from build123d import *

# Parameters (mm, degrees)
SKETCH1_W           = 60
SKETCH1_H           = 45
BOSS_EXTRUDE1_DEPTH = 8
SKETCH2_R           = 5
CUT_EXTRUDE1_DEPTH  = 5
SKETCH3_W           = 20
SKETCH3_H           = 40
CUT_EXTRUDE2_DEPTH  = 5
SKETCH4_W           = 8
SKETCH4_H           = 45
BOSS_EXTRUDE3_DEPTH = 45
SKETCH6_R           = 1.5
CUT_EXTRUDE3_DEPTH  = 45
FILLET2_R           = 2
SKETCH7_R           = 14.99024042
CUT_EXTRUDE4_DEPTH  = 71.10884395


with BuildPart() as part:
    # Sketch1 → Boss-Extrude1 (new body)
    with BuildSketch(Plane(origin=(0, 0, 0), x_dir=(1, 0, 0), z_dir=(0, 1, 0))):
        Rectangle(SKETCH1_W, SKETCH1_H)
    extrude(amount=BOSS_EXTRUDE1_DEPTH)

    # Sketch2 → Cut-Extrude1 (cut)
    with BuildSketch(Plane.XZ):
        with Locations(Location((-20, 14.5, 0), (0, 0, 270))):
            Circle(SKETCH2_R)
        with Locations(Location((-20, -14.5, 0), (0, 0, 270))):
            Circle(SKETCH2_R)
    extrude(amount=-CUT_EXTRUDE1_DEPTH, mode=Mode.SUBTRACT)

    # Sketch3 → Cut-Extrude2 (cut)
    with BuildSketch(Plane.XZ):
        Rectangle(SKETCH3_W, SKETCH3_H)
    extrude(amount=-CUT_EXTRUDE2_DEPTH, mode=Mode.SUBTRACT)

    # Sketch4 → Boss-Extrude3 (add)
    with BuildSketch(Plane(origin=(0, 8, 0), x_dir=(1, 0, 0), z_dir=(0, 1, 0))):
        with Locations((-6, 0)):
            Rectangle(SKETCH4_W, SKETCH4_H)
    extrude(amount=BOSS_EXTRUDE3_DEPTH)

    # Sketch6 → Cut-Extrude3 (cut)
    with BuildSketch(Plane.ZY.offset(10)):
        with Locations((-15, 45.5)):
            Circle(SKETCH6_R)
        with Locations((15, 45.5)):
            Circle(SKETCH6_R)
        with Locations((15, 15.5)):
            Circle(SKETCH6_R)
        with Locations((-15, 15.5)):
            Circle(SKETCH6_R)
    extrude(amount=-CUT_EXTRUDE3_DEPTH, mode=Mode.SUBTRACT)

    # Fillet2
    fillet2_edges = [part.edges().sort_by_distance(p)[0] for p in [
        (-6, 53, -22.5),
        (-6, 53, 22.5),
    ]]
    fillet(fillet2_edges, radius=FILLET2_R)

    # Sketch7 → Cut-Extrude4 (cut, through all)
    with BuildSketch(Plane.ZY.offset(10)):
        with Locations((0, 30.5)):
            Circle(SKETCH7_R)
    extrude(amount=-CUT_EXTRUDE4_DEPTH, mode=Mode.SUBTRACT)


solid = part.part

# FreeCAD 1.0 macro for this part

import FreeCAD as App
import Part
import Sketcher

V = App.Vector


def edges_at(feature, points):
    """Names of the edges that pass closest to the given points."""
    edges = feature.Shape.Edges
    near = lambda p: min(range(len(edges)), key=lambda i: edges[i].distToShape(Part.Vertex(*p))[0])
    return sorted({f"Edge{near(p) + 1}" for p in points})

doc = App.newDocument("Part")
body = doc.addObject("PartDesign::Body", "Body")

# Sketch on XZ plane
sketch1 = body.newObject("Sketcher::SketchObject", "Sketch")
sketch1.AttachmentSupport = (doc.getObject("XZ_Plane"), [""])
sketch1.MapMode = "FlatFace"
sketch1.addGeometry([
    Part.LineSegment(V(-30, -22.5, 0), V(-30, 22.5, 0)),
    Part.LineSegment(V(-30, 22.5, 0), V(30, 22.5, 0)),
    Part.LineSegment(V(30, 22.5, 0), V(30, -22.5, 0)),
    Part.LineSegment(V(30, -22.5, 0), V(-30, -22.5, 0)),
], False)
sketch1.addConstraint([
    Sketcher.Constraint("Coincident", 0, 2, 1, 1),
    Sketcher.Constraint("Coincident", 1, 2, 2, 1),
    Sketcher.Constraint("Coincident", 2, 2, 3, 1),
    Sketcher.Constraint("Coincident", 3, 2, 0, 1),
    Sketcher.Constraint("Vertical", 0),
    Sketcher.Constraint("Horizontal", 1),
    Sketcher.Constraint("Vertical", 2),
    Sketcher.Constraint("Horizontal", 3),
    Sketcher.Constraint("Symmetric", 0, 2, 2, 2, -1, 1),
    Sketcher.Constraint("DistanceX", 1, 1, 1, 2, 60.0),
    Sketcher.Constraint("DistanceY", 0, 1, 0, 2, 45.0),
])
pad1 = body.newObject("PartDesign::Pad", "Pad")
pad1.Profile = sketch1
pad1.Length = 8
pad1.Reversed = True

# Sketch on XZ plane
sketch2 = body.newObject("Sketcher::SketchObject", "Sketch001")
sketch2.AttachmentSupport = (doc.getObject("XZ_Plane"), [""])
sketch2.MapMode = "FlatFace"
sketch2.addGeometry([
    Part.Circle(V(-20, 14.5, 0), V(0, 0, 1), 5),
    Part.Circle(V(-20, -14.5, 0), V(0, 0, 1), 5),
], False)
sketch2.addConstraint([
    Sketcher.Constraint("Equal", 0, 1),
    Sketcher.Constraint("Symmetric", 0, 3, 1, 3, -1),
    Sketcher.Constraint("Diameter", 0, 10.0),
    Sketcher.Constraint("DistanceX", 0, 3, -1, 1, 20.0),
    Sketcher.Constraint("DistanceY", 1, 3, 0, 3, 29.0),
])
pocket1 = body.newObject("PartDesign::Pocket", "Pocket")
pocket1.Profile = sketch2
pocket1.Length = 5

# Sketch on XZ plane
sketch3 = body.newObject("Sketcher::SketchObject", "Sketch002")
sketch3.AttachmentSupport = (doc.getObject("XZ_Plane"), [""])
sketch3.MapMode = "FlatFace"
sketch3.addGeometry([
    Part.LineSegment(V(-10, 20, 0), V(-10, -20, 0)),
    Part.LineSegment(V(-10, -20, 0), V(10, -20, 0)),
    Part.LineSegment(V(10, -20, 0), V(10, 20, 0)),
    Part.LineSegment(V(10, 20, 0), V(-10, 20, 0)),
], False)
sketch3.addConstraint([
    Sketcher.Constraint("Coincident", 0, 2, 1, 1),
    Sketcher.Constraint("Coincident", 1, 2, 2, 1),
    Sketcher.Constraint("Coincident", 2, 2, 3, 1),
    Sketcher.Constraint("Coincident", 3, 2, 0, 1),
    Sketcher.Constraint("Vertical", 0),
    Sketcher.Constraint("Horizontal", 1),
    Sketcher.Constraint("Vertical", 2),
    Sketcher.Constraint("Horizontal", 3),
    Sketcher.Constraint("Symmetric", 0, 2, 2, 2, -1, 1),
    Sketcher.Constraint("DistanceX", 1, 1, 1, 2, 20.0),
    Sketcher.Constraint("DistanceY", 0, 2, 0, 1, 40.0),
])
pocket2 = body.newObject("PartDesign::Pocket", "Pocket001")
pocket2.Profile = sketch3
pocket2.Length = 5

# Sketch on XZ plane
sketch4 = body.newObject("Sketcher::SketchObject", "Sketch003")
sketch4.AttachmentSupport = (doc.getObject("XZ_Plane"), [""])
sketch4.MapMode = "FlatFace"
sketch4.AttachmentOffset = App.Placement(V(0, 0, -8), App.Rotation())
sketch4.addGeometry([
    Part.LineSegment(V(-10, -22.5, 0), V(-10, 22.5, 0)),
    Part.LineSegment(V(-10, 22.5, 0), V(-2, 22.5, 0)),
    Part.LineSegment(V(-2, 22.5, 0), V(-2, -22.5, 0)),
    Part.LineSegment(V(-2, -22.5, 0), V(-10, -22.5, 0)),
], False)
sketch4.addConstraint([
    Sketcher.Constraint("Coincident", 0, 2, 1, 1),
    Sketcher.Constraint("Coincident", 1, 2, 2, 1),
    Sketcher.Constraint("Coincident", 2, 2, 3, 1),
    Sketcher.Constraint("Coincident", 3, 2, 0, 1),
    Sketcher.Constraint("Vertical", 0),
    Sketcher.Constraint("Horizontal", 1),
    Sketcher.Constraint("Vertical", 2),
    Sketcher.Constraint("Horizontal", 3),
    Sketcher.Constraint("DistanceX", 1, 1, 1, 2, 8.0),
    Sketcher.Constraint("DistanceY", 0, 1, 0, 2, 45.0),
    Sketcher.Constraint("DistanceX", 0, 2, -1, 1, 10.0),
    Sketcher.Constraint("DistanceY", -1, 1, 0, 2, 22.5),
])
pad2 = body.newObject("PartDesign::Pad", "Pad001")
pad2.Profile = sketch4
pad2.Length = 45
pad2.Reversed = True

# Sketch on YZ plane
sketch5 = body.newObject("Sketcher::SketchObject", "Sketch004")
sketch5.AttachmentSupport = (doc.getObject("YZ_Plane"), [""])
sketch5.MapMode = "FlatFace"
sketch5.AttachmentOffset = App.Placement(V(0, 0, -10), App.Rotation())
sketch5.addGeometry([
    Part.Circle(V(45.5, -15, 0), V(0, 0, 1), 1.5),
    Part.Circle(V(45.5, 15, 0), V(0, 0, 1), 1.5),
    Part.Circle(V(15.5, 15, 0), V(0, 0, 1), 1.5),
    Part.Circle(V(15.5, -15, 0), V(0, 0, 1), 1.5),
], False)
sketch5.addConstraint([
    Sketcher.Constraint("Equal", 0, 1),
    Sketcher.Constraint("Equal", 1, 2),
    Sketcher.Constraint("Equal", 2, 3),
    Sketcher.Constraint("Symmetric", 0, 3, 1, 3, -1),
    Sketcher.Constraint("Symmetric", 2, 3, 3, 3, -1),
    Sketcher.Constraint("Horizontal", 1, 3, 2, 3),
    Sketcher.Constraint("Diameter", 0, 3.0),
    Sketcher.Constraint("DistanceY", 0, 3, -1, 1, 15.0),
    Sketcher.Constraint("DistanceX", 2, 3, 1, 3, 30.0),
    Sketcher.Constraint("DistanceX", -1, 1, 0, 3, 45.5),
])
pocket3 = body.newObject("PartDesign::Pocket", "Pocket002")
pocket3.Profile = sketch5
pocket3.Length = 45
pocket3.Reversed = True
doc.recompute()

fillet = body.newObject("PartDesign::Fillet", "Fillet")
fillet.Base = (pocket3, edges_at(pocket3, [(-6, 53, -22.5), (-6, 53, 22.5)]))
fillet.Radius = 2

# Sketch on YZ plane
sketch6 = body.newObject("Sketcher::SketchObject", "Sketch005")
sketch6.AttachmentSupport = (doc.getObject("YZ_Plane"), [""])
sketch6.MapMode = "FlatFace"
sketch6.AttachmentOffset = App.Placement(V(0, 0, -10), App.Rotation())
sketch6.addGeometry(Part.Circle(V(30.5, 0, 0), V(0, 0, 1), 14.99024), False)
sketch6.addConstraint([
    Sketcher.Constraint("PointOnObject", 0, 3, -1),
    Sketcher.Constraint("DistanceX", -1, 1, 0, 3, 30.5),
    Sketcher.Constraint("Diameter", 0, 29.980481),
])
pocket4 = body.newObject("PartDesign::Pocket", "Pocket003")
pocket4.Profile = sketch6
pocket4.Type = "ThroughAll"
pocket4.Reversed = True

doc.recompute()
